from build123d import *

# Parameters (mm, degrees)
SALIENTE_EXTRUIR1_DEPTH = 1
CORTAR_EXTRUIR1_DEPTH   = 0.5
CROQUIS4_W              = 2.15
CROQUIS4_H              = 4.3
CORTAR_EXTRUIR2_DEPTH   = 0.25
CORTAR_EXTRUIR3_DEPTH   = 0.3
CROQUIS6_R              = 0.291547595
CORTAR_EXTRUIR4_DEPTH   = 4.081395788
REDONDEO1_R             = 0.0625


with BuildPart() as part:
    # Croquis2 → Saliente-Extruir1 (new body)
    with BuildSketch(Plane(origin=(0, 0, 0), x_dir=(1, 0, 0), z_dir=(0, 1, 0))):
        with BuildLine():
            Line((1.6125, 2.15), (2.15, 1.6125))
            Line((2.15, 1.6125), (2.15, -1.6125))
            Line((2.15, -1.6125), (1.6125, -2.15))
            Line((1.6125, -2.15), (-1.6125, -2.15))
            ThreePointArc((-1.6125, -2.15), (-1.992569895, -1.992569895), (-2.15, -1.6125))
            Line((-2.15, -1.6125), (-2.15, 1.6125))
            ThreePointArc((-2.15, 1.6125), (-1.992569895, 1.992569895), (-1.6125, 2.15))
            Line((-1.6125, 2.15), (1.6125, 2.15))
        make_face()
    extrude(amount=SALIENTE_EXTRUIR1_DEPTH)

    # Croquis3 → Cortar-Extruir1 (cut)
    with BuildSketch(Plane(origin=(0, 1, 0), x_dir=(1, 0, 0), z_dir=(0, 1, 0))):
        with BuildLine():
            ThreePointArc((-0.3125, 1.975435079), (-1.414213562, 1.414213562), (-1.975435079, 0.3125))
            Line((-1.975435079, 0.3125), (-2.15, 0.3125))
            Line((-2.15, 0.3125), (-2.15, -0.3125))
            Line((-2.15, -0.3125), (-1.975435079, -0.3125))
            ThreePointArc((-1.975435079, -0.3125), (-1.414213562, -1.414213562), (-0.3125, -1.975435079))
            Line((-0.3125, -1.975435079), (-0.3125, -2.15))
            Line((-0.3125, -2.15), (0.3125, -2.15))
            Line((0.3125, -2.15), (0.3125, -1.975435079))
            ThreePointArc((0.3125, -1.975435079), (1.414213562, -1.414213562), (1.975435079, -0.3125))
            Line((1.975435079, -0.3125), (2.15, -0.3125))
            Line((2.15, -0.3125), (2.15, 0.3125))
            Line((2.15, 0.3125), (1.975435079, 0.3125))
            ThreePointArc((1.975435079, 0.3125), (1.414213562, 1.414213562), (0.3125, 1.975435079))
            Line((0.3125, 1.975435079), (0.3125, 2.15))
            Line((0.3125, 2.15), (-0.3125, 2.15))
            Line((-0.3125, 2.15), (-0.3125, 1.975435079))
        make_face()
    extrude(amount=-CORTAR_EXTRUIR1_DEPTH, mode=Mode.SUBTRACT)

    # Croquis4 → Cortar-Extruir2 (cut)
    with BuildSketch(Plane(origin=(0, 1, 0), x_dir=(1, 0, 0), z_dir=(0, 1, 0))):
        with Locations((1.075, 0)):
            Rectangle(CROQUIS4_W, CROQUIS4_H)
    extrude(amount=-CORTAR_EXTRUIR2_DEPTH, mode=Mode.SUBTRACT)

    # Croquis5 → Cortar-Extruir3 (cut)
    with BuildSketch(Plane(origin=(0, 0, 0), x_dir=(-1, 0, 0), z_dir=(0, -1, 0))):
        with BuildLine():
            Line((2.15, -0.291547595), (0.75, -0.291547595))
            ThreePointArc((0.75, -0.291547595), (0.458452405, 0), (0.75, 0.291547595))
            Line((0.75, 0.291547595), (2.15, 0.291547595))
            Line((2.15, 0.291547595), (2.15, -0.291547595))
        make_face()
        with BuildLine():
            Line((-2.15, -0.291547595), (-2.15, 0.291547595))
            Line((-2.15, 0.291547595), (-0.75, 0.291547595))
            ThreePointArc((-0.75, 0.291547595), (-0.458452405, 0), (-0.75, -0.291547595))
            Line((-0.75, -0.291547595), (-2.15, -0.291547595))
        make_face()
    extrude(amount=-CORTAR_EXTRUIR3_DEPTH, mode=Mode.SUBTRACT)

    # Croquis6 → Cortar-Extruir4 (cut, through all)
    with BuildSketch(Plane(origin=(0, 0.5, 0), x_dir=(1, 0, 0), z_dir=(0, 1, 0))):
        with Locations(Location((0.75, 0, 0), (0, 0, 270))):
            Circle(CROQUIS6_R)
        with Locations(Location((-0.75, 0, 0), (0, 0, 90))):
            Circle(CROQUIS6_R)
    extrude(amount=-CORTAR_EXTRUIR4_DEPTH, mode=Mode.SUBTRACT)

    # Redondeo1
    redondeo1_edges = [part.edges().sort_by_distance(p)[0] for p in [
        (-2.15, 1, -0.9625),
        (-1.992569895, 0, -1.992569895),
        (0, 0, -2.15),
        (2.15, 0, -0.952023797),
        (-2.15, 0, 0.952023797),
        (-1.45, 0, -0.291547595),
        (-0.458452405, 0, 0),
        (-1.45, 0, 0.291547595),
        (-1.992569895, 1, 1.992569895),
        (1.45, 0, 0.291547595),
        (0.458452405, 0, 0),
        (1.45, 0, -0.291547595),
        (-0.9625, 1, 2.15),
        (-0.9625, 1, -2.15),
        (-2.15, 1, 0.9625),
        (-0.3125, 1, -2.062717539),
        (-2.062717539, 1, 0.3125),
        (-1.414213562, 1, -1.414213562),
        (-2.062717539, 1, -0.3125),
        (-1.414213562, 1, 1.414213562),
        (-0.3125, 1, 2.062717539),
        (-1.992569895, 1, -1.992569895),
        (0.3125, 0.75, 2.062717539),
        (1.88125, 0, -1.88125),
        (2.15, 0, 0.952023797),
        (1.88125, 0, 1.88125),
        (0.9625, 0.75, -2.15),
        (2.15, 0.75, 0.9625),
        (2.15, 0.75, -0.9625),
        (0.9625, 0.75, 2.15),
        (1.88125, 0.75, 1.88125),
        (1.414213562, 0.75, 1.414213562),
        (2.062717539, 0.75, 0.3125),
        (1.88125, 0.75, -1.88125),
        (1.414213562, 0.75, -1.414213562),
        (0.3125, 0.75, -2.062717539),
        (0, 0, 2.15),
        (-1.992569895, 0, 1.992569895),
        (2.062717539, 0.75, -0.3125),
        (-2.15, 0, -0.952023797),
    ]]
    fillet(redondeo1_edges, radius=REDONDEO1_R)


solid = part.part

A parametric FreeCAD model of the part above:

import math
import FreeCAD as App
import Part
import Sketcher


def edges_at(feature, points):
    """Names of the edges that pass closest to the given points."""
    edges = feature.Shape.Edges
    near = lambda p: min(range(len(edges)), key=lambda i: edges[i].distToShape(Part.Vertex(*p))[0])
    return sorted({f"Edge{near(p) + 1}" for p in points})


def add_polygon(sketch, points):
    """Adds a closed chain of lines whose ends are joined by coincident constraints."""
    first, n = sketch.GeometryCount, len(points)
    for a, b in zip(points, points[1:] + points[:1]):
        sketch.addGeometry(Part.LineSegment(App.Vector(*a, 0), App.Vector(*b, 0)), False)
    for i in range(n):
        sketch.addConstraint(Sketcher.Constraint("Coincident", first + i, 2, first + (i + 1) % n, 1))

doc = App.newDocument("Part")
params = doc.addObject("Spreadsheet::Sheet", "Params")
for row, (alias, value) in enumerate([
    ("pad1_length", "1 mm"),
    ("sketch2_radius", "2 mm"),
    ("pocket1_length", "0.5 mm"),
    ("sketch3_height", "4.3 mm"),
    ("sketch3_width", "2.15 mm"),
    ("pocket2_length", "0.25 mm"),
    ("sketch4_width", "1.4 mm"),
    ("pocket3_length", "0.3 mm"),
    ("fillet_radius", "0.0625 mm"),
], start=1):
    params.set(f"A{row}", alias)
    params.set(f"B{row}", "=" + value)
    params.setAlias(f"B{row}", alias)

body = doc.addObject("PartDesign::Body", "Body")

# Sketch on XZ plane
sketch1 = body.newObject("Sketcher::SketchObject", "Sketch")
sketch1.AttachmentSupport = (doc.getObject("XZ_Plane"), [""])
sketch1.MapMode = "FlatFace"
sketch1.addGeometry([
    Part.LineSegment(App.Vector(2.1, -1.6, 0), App.Vector(1.6, -2.1, 0)),  # 0
    Part.LineSegment(App.Vector(1.6, -2.1, 0), App.Vector(-1.6, -2.1, 0)),  # 1
    Part.ArcOfCircle(Part.Circle(App.Vector(-1.6, -1.6, 0), App.Vector(0, 0, 1), 0.5), math.radians(180), math.radians(270)),  # 2
    Part.LineSegment(App.Vector(-2.1, -1.6, 0), App.Vector(-2.1, 1.6, 0)),  # 3
    Part.ArcOfCircle(Part.Circle(App.Vector(-1.6, 1.6, 0), App.Vector(0, 0, 1), 0.5), math.radians(90), math.radians(180)),  # 4
    Part.LineSegment(App.Vector(-1.6, 2.1, 0), App.Vector(1.6, 2.1, 0)),  # 5
    Part.LineSegment(App.Vector(1.6, 2.1, 0), App.Vector(2.1, 1.6, 0)),  # 6
    Part.LineSegment(App.Vector(2.1, 1.6, 0), App.Vector(2.1, -1.6, 0)),  # 7
], False)
sketch1.addConstraint([
    Sketcher.Constraint("Coincident", 0, 2, 1, 1),
    Sketcher.Constraint("Tangent", 1, 2, 2, 2),
    Sketcher.Constraint("Tangent", 2, 1, 3, 1),
    Sketcher.Constraint("Tangent", 3, 2, 4, 2),
    Sketcher.Constraint("Tangent", 4, 1, 5, 1),
    Sketcher.Constraint("Coincident", 5, 2, 6, 1),
    Sketcher.Constraint("Coincident", 6, 2, 7, 1),
    Sketcher.Constraint("Coincident", 7, 2, 0, 1),
    Sketcher.Constraint("Horizontal", 1),
    Sketcher.Constraint("Vertical", 3),
    Sketcher.Constraint("Horizontal", 5),
    Sketcher.Constraint("Vertical", 7),
    Sketcher.Constraint("Equal", 2, 4),
    Sketcher.Constraint("Symmetric", 0, 2, 4, 1, -1, 1),
    Sketcher.Constraint("Symmetric", 2, 1, 6, 2, -1, 1),
    Sketcher.Constraint("Perpendicular", 0, 6),
    Sketcher.Constraint("Horizontal", 2, 1, 7, 2),
    Sketcher.Constraint("Equal", 5, 3),
    Sketcher.Constraint("Radius", 2, 0.5375),
    Sketcher.Constraint("DistanceY", 1, 2, 4, 1, 4.3),
])
pad1 = body.newObject("PartDesign::Pad", "Pad")
pad1.Profile = sketch1
pad1.setExpression("Length", "Params.pad1_length")
pad1.Reversed = True

# Sketch on XZ plane
sketch2 = body.newObject("Sketcher::SketchObject", "Sketch001")
sketch2.AttachmentSupport = (doc.getObject("XZ_Plane"), [""])
sketch2.MapMode = "FlatFace"
sketch2.AttachmentOffset = App.Placement(App.Vector(0, 0, -1), App.Rotation())
sketch2.addGeometry([
    Part.ArcOfCircle(Part.Circle(App.Vector(0, 0, 0), App.Vector(0, 0, 1), 2), math.radians(-171), math.radians(-99)),  # 0
    Part.LineSegment(App.Vector(-1.98, -0.31, 0), App.Vector(-2.15, -0.31, 0)),  # 1
    Part.LineSegment(App.Vector(-2.15, -0.31, 0), App.Vector(-2.15, 0.31, 0)),  # 2
    Part.LineSegment(App.Vector(-2.15, 0.31, 0), App.Vector(-1.98, 0.31, 0)),  # 3
    Part.ArcOfCircle(Part.Circle(App.Vector(0, 0, 0), App.Vector(0, 0, 1), 2), math.radians(99), math.radians(171)),  # 4
    Part.LineSegment(App.Vector(-0.31, 1.98, 0), App.Vector(-0.31, 2.15, 0)),  # 5
    Part.LineSegment(App.Vector(-0.31, 2.15, 0), App.Vector(0.31, 2.15, 0)),  # 6
    Part.LineSegment(App.Vector(0.31, 2.15, 0), App.Vector(0.31, 1.98, 0)),  # 7
    Part.ArcOfCircle(Part.Circle(App.Vector(0, 0, 0), App.Vector(0, 0, 1), 2), math.radians(9), math.radians(81)),  # 8
    Part.LineSegment(App.Vector(1.98, 0.31, 0), App.Vector(2.15, 0.31, 0)),  # 9
    Part.LineSegment(App.Vector(2.15, 0.31, 0), App.Vector(2.15, -0.31, 0)),  # 10
    Part.LineSegment(App.Vector(2.15, -0.31, 0), App.Vector(1.98, -0.31, 0)),  # 11
    Part.ArcOfCircle(Part.Circle(App.Vector(0, 0, 0), App.Vector(0, 0, 1), 2), math.radians(-81), math.radians(-9)),  # 12
    Part.LineSegment(App.Vector(0.31, -1.98, 0), App.Vector(0.31, -2.15, 0)),  # 13
    Part.LineSegment(App.Vector(0.31, -2.15, 0), App.Vector(-0.31, -2.15, 0)),  # 14
    Part.LineSegment(App.Vector(-0.31, -2.15, 0), App.Vector(-0.31, -1.98, 0)),  # 15
], False)
sketch2.addConstraint([
    Sketcher.Constraint("Coincident", 0, 1, 1, 1),
    Sketcher.Constraint("Coincident", 1, 2, 2, 1),
    Sketcher.Constraint("Coincident", 2, 2, 3, 1),
    Sketcher.Constraint("Coincident", 3, 2, 4, 2),
    Sketcher.Constraint("Coincident", 4, 1, 5, 1),
    Sketcher.Constraint("Coincident", 5, 2, 6, 1),
    Sketcher.Constraint("Coincident", 6, 2, 7, 1),
    Sketcher.Constraint("Coincident", 7, 2, 8, 2),
    Sketcher.Constraint("Coincident", 8, 1, 9, 1),
    Sketcher.Constraint("Coincident", 9, 2, 10, 1),
    Sketcher.Constraint("Coincident", 10, 2, 11, 1),
    Sketcher.Constraint("Coincident", 11, 2, 12, 2),
    Sketcher.Constraint("Coincident", 12, 1, 13, 1),
    Sketcher.Constraint("Coincident", 13, 2, 14, 1),
    Sketcher.Constraint("Coincident", 14, 2, 15, 1),
    Sketcher.Constraint("Coincident", 15, 2, 0, 2),
    Sketcher.Constraint("Horizontal", 1),
    Sketcher.Constraint("Vertical", 2),
    Sketcher.Constraint("Horizontal", 3),
    Sketcher.Constraint("Vertical", 5),
    Sketcher.Constraint("Horizontal", 6),
    Sketcher.Constraint("Vertical", 7),
    Sketcher.Constraint("Horizontal", 9),
    Sketcher.Constraint("Vertical", 10),
    Sketcher.Constraint("Horizontal", 11),
    Sketcher.Constraint("Vertical", 13),
    Sketcher.Constraint("Horizontal", 14),
    Sketcher.Constraint("Vertical", 15),
    Sketcher.Constraint("Coincident", 0, 3, -1, 1),
    Sketcher.Constraint("Coincident", 4, 3, -1, 1),
    Sketcher.Constraint("Coincident", 8, 3, -1, 1),
    Sketcher.Constraint("Coincident", 12, 3, -1, 1),
    Sketcher.Constraint("Equal", 0, 4),
    Sketcher.Constraint("Equal", 4, 8),
    Sketcher.Constraint("Equal", 8, 12),
    Sketcher.Constraint("Symmetric", 1, 2, 9, 2, -1, 1),
    Sketcher.Constraint("Symmetric", 5, 2, 13, 2, -1, 1),
    Sketcher.Constraint("Horizontal", 4, 1, 7, 2),
    Sketcher.Constraint("Horizontal", 3, 2, 8, 1),
    Sketcher.Constraint("Horizontal", 1, 2, 10, 2),
    Sketcher.Constraint("Horizontal", 12, 1, 15, 2),
    Sketcher.Constraint("Equal", 14, 2),
    Sketcher.Constraint("Equal", 11, 5),
    Sketcher.Constraint("Radius", 0, 2.0),
    Sketcher.Constraint("DistanceX", 6, 1, 6, 2, 0.625),
    Sketcher.Constraint("DistanceX", 1, 2, -1, 1, 2.15),
])
sketch2.setExpression("Constraints[43]", "Params.sketch2_radius")
pocket1 = body.newObject("PartDesign::Pocket", "Pocket")
pocket1.Profile = sketch2
pocket1.setExpression("Length", "Params.pocket1_length")
pocket1.Reversed = True

# Sketch on XZ plane
sketch3 = body.newObject("Sketcher::SketchObject", "Sketch002")
sketch3.AttachmentSupport = (doc.getObject("XZ_Plane"), [""])
sketch3.MapMode = "FlatFace"
sketch3.AttachmentOffset = App.Placement(App.Vector(0, 0, -1), App.Rotation())
add_polygon(sketch3, [(0, -2.1), (0, 2.1), (2.1, 2.1), (2.1, -2.1)])  # lines 0-3
sketch3.addConstraint([
    Sketcher.Constraint("Vertical", 0),
    Sketcher.Constraint("Horizontal", 1),
    Sketcher.Constraint("Vertical", 2),
    Sketcher.Constraint("Horizontal", 3),
    Sketcher.Constraint("Symmetric", 0, 2, 3, 2, -1, 1),
    Sketcher.Constraint("DistanceY", 0, 1, 0, 2, 4.3),
    Sketcher.Constraint("DistanceX", 1, 1, 1, 2, 2.15),
])
sketch3.setExpression("Constraints[9]", "Params.sketch3_height")
sketch3.setExpression("Constraints[10]", "Params.sketch3_width")
pocket2 = body.newObject("PartDesign::Pocket", "Pocket001")
pocket2.Profile = sketch3
pocket2.setExpression("Length", "Params.pocket2_length")
pocket2.Reversed = True

# Sketch on XZ plane
sketch4 = body.newObject("Sketcher::SketchObject", "Sketch003")
sketch4.AttachmentSupport = (doc.getObject("XZ_Plane"), [""])
sketch4.MapMode = "FlatFace"
sketch4.addGeometry([
    Part.LineSegment(App.Vector(-0.75, 0.29, 0), App.Vector(-2.15, 0.29, 0)),  # 0
    Part.LineSegment(App.Vector(-2.15, 0.29, 0), App.Vector(-2.15, -0.29, 0)),  # 1
    Part.LineSegment(App.Vector(-2.15, -0.29, 0), App.Vector(-0.75, -0.29, 0)),  # 2
    Part.ArcOfCircle(Part.Circle(App.Vector(-0.75, 0, 0), App.Vector(0, 0, 1), 0.29), math.radians(-90), math.radians(90)),  # 3
    Part.LineSegment(App.Vector(2.15, -0.29, 0), App.Vector(2.15, 0.29, 0)),  # 4
    Part.LineSegment(App.Vector(2.15, 0.29, 0), App.Vector(0.75, 0.29, 0)),  # 5
    Part.ArcOfCircle(Part.Circle(App.Vector(0.75, 0, 0), App.Vector(0, 0, 1), 0.29), math.radians(90), math.radians(270)),  # 6
    Part.LineSegment(App.Vector(0.75, -0.29, 0), App.Vector(2.15, -0.29, 0)),  # 7
], False)
sketch4.addConstraint([
    Sketcher.Constraint("Coincident", 0, 2, 1, 1),
    Sketcher.Constraint("Coincident", 1, 2, 2, 1),
    Sketcher.Constraint("Tangent", 2, 2, 3, 1),
    Sketcher.Constraint("Tangent", 3, 2, 0, 1),
    Sketcher.Constraint("Coincident", 4, 2, 5, 1),
    Sketcher.Constraint("Tangent", 5, 2, 6, 1),
    Sketcher.Constraint("Tangent", 6, 2, 7, 1),
    Sketcher.Constraint("Coincident", 7, 2, 4, 1),
    Sketcher.Constraint("Horizontal", 0),
    Sketcher.Constraint("Vertical", 1),
    Sketcher.Constraint("Horizontal", 2),
    Sketcher.Constraint("Vertical", 4),
    Sketcher.Constraint("Horizontal", 5),
    Sketcher.Constraint("Horizontal", 7),
    Sketcher.Constraint("Equal", 3, 6),
    Sketcher.Constraint("Symmetric", 3, 3, 6, 3, -1, 1),
    Sketcher.Constraint("Symmetric", 0, 2, 4, 2, -2),
    Sketcher.Constraint("DistanceX", 0, 2, 0, 1, 1.4),
    Sketcher.Constraint("DistanceX", 3, 3, 6, 3, 1.5),
    Sketcher.Constraint("Radius", 3, 0.291548),
])
sketch4.setExpression("Constraints[17]", "Params.sketch4_width")
pocket3 = body.newObject("PartDesign::Pocket", "Pocket002")
pocket3.Profile = sketch4
pocket3.setExpression("Length", "Params.pocket3_length")

# Sketch on XZ plane
sketch5 = body.newObject("Sketcher::SketchObject", "Sketch004")
sketch5.AttachmentSupport = (doc.getObject("XZ_Plane"), [""])
sketch5.MapMode = "FlatFace"
sketch5.AttachmentOffset = App.Placement(App.Vector(0, 0, -0.5), App.Rotation())
sketch5.addGeometry([
    Part.Circle(App.Vector(0.75, 0, 0), App.Vector(0, 0, 1), 0.29),
    Part.Circle(App.Vector(-0.75, 0, 0), App.Vector(0, 0, 1), 0.29),
], False)
sketch5.addConstraint([
    Sketcher.Constraint("Equal", 0, 1),
    Sketcher.Constraint("Symmetric", 0, 3, 1, 3, -1, 1),
    Sketcher.Constraint("PointOnObject", 0, 3, -1),
    Sketcher.Constraint("DistanceX", 1, 3, 0, 3, 1.5),
    Sketcher.Constraint("Diameter", 0, 0.583095),
])
pocket4 = body.newObject("PartDesign::Pocket", "Pocket003")
pocket4.Profile = sketch5
pocket4.Type = "ThroughAll"
pocket4.Reversed = True
doc.recompute()

fillet = body.newObject("PartDesign::Fillet", "Fillet")
fillet.Base = (pocket4, edges_at(pocket4, [
    (-2.15, 1, -0.963),
    (-1.993, 0, -1.993),
    (0, 0, -2.15),
    (2.15, 0, -0.952),
    (-2.15, 0, 0.952),
    (-1.45, 0, -0.292),
    (-0.458, 0, 0),
    (-1.45, 0, 0.292),
    (-1.993, 1, 1.993),
    (1.45, 0, 0.292),
    (0.458, 0, 0),
    (1.45, 0, -0.292),
    (-0.963, 1, 2.15),
    (-0.963, 1, -2.15),
    (-2.15, 1, 0.963),
    (-0.312, 1, -2.063),
    (-2.063, 1, 0.312),
    (-1.414, 1, -1.414),
    (-2.063, 1, -0.312),
    (-1.414, 1, 1.414),
    (-0.312, 1, 2.063),
    (-1.993, 1, -1.993),
    (0.312, 0.75, 2.063),
    (1.881, 0, -1.881),
    (2.15, 0, 0.952),
    (1.881, 0, 1.881),
    (0.963, 0.75, -2.15),
    (2.15, 0.75, 0.963),
    (2.15, 0.75, -0.963),
    (0.963, 0.75, 2.15),
    (1.881, 0.75, 1.881),
    (1.414, 0.75, 1.414),
    (2.063, 0.75, 0.312),
    (1.881, 0.75, -1.881),
    (1.414, 0.75, -1.414),
    (0.312, 0.75, -2.063),
    (0, 0, 2.15),
    (-1.993, 0, 1.993),
    (2.063, 0.75, -0.312),
    (-2.15, 0, -0.952),
]))
fillet.setExpression("Radius", "Params.fillet_radius")

doc.recompute()
